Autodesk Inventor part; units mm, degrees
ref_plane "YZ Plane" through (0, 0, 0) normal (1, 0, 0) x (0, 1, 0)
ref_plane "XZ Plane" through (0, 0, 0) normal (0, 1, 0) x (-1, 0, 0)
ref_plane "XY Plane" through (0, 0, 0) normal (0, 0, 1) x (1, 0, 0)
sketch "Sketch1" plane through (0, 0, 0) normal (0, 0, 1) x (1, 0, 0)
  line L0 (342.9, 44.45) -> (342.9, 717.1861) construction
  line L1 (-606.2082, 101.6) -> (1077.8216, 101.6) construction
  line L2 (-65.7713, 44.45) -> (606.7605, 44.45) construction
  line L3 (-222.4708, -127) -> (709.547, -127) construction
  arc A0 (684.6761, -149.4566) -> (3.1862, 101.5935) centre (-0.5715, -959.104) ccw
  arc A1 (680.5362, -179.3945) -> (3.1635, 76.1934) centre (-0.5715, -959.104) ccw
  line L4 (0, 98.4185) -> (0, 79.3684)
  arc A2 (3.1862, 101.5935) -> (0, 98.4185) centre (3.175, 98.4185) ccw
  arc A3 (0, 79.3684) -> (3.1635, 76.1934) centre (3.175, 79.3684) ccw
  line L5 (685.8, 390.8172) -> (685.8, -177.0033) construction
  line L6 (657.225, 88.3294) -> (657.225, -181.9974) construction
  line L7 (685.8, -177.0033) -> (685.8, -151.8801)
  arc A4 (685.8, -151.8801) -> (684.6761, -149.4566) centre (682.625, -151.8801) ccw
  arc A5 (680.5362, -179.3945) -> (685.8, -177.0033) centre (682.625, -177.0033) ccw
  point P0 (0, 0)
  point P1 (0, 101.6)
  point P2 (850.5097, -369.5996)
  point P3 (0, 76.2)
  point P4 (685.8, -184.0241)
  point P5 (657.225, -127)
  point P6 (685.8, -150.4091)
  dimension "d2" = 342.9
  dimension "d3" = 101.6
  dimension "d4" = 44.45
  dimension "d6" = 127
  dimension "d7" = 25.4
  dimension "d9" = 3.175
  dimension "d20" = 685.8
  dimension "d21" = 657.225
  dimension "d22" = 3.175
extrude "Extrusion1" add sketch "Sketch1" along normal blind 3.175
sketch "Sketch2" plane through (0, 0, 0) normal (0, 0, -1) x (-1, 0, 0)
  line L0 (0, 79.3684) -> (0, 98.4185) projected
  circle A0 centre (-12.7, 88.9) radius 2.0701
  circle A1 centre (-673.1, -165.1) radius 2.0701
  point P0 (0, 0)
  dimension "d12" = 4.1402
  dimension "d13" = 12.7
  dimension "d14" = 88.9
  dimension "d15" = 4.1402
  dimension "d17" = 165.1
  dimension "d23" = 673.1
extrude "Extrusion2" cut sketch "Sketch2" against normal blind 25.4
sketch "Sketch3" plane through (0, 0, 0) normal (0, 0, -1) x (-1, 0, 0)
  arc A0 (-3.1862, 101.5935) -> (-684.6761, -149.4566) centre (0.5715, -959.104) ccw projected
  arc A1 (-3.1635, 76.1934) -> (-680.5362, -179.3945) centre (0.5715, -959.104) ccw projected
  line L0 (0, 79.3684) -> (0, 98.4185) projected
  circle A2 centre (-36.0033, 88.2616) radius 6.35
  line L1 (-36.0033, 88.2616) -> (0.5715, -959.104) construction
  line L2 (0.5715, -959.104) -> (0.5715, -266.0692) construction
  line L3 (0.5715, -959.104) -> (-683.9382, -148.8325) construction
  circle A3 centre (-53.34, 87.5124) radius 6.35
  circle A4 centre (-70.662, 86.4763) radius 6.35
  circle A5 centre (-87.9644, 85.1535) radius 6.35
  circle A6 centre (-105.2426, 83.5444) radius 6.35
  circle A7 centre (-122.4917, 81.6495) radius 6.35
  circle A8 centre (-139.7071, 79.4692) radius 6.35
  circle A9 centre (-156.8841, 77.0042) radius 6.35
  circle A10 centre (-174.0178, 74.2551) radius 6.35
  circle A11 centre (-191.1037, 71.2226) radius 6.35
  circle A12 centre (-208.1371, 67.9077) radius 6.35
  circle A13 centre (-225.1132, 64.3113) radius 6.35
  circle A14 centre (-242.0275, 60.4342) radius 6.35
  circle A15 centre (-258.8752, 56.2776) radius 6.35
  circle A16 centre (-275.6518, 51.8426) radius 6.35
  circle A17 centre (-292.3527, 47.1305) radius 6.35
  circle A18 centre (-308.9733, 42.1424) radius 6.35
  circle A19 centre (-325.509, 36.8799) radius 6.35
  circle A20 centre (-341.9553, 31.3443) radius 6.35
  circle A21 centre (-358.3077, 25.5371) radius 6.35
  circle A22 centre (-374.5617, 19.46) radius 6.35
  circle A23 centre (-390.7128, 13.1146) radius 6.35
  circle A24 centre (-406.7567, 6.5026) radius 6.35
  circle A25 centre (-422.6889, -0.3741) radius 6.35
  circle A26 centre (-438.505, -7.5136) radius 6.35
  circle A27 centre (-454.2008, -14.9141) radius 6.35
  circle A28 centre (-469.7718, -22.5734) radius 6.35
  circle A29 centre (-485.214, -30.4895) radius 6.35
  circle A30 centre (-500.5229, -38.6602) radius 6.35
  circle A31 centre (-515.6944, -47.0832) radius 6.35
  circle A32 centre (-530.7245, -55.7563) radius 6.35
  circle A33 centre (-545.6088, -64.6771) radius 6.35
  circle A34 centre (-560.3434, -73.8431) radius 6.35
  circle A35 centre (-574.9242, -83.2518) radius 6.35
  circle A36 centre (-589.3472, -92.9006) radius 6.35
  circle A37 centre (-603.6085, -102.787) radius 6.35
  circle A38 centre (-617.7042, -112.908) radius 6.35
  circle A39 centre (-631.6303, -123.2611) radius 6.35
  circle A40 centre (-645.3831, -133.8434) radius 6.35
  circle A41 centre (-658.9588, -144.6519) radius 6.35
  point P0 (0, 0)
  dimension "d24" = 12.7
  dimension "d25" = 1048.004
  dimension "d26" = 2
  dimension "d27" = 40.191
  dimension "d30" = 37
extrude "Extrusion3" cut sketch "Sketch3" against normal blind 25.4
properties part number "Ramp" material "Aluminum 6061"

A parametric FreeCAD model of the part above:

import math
import FreeCAD as App
import Part
import Sketcher
from FreeCAD import Vector
Q = App.Units.Quantity

doc = App.newDocument("Part")
body = doc.addObject("PartDesign::Body", "Body")

sketch1 = body.newObject("Sketcher::SketchObject", "Sketch")
sketch1.AttachmentSupport = (doc.getObject("XY_Plane"), [""])
sketch1.MapMode = "FlatFace"
sketch1.addGeometry([
    Part.ArcOfCircle(Part.Circle(Vector(682.6, -151.9, 0), Vector(0, 0, 1), 3.2), math.radians(0), math.radians(50)),
    Part.ArcOfCircle(Part.Circle(Vector(-0.6, -959.1, 0), Vector(0, 0, 1), 1060.7), math.radians(50), math.radians(90)),
    Part.ArcOfCircle(Part.Circle(Vector(3.2, 98.4, 0), Vector(0, 0, 1), 3.2), math.radians(90), math.radians(180)),
    Part.LineSegment(Vector(0, 98.4, 0), Vector(0, 79.4, 0)),
    Part.ArcOfCircle(Part.Circle(Vector(3.2, 79.4, 0), Vector(0, 0, 1), 3.2), math.radians(180), math.radians(270)),
    Part.ArcOfCircle(Part.Circle(Vector(-0.6, -959.1, 0), Vector(0, 0, 1), 1035.3), math.radians(49), math.radians(90)),
    Part.ArcOfCircle(Part.Circle(Vector(682.6, -177, 0), Vector(0, 0, 1), 3.2), math.radians(-131), math.radians(0)),
    Part.LineSegment(Vector(685.8, -177, 0), Vector(685.8, -151.9, 0)),
], False)
sketch1.addConstraint([
    Sketcher.Constraint("Tangent", 0, 2, 1, 1),
    Sketcher.Constraint("Tangent", 1, 2, 2, 1),
    Sketcher.Constraint("Tangent", 2, 2, 3, 1),
    Sketcher.Constraint("Tangent", 3, 2, 4, 1),
    Sketcher.Constraint("Tangent", 4, 2, 5, 2),
    Sketcher.Constraint("Tangent", 5, 1, 6, 1),
    Sketcher.Constraint("Tangent", 6, 2, 7, 1),
    Sketcher.Constraint("Tangent", 7, 2, 0, 1),
    Sketcher.Constraint("Vertical", 3),
    Sketcher.Constraint("Vertical", 7),
    Sketcher.Constraint("Coincident", 5, 3, 1, 3),
    Sketcher.Constraint("Equal", 0, 2),
    Sketcher.Constraint("Equal", 2, 4),
    Sketcher.Constraint("Equal", 4, 6),
    Sketcher.Constraint("PointOnObject", 2, 2, -2),
    Sketcher.Constraint("DistanceX", -1, 1, 6, 2, Q("27 in")),
    Sketcher.Constraint("Radius", 0, Q("0.125 in")),
    Sketcher.Constraint("DistanceY", 4, 2, 1, 2, Q("1 in")),
    Sketcher.Constraint("Radius", 1, Q("41.76 in")),
    Sketcher.Constraint("DistanceY", 1, 3, -1, 1, Q("37.76 in")),
    Sketcher.Constraint("DistanceY", 7, 1, 7, 2, Q("0.9891 in")),
])
pad1 = body.newObject("PartDesign::Pad", "Pad")
pad1.Profile = sketch1
pad1.Length = Q("0.125 in")

sketch2 = body.newObject("Sketcher::SketchObject", "Sketch001")
sketch2.AttachmentSupport = (doc.getObject("XY_Plane"), [""])
sketch2.MapMode = "FlatFace"
sketch2.addGeometry([
    Part.Circle(Vector(12.7, 88.9, 0), Vector(0, 0, 1), 2.1),
    Part.Circle(Vector(673.1, -165.1, 0), Vector(0, 0, 1), 2.1),
], False)
sketch2.addConstraint([
    Sketcher.Constraint("Equal", 0, 1),
    Sketcher.Constraint("Diameter", 0, Q("0.163 in")),
    Sketcher.Constraint("DistanceX", -1, 1, 0, 3, Q("0.5 in")),
    Sketcher.Constraint("DistanceY", -1, 1, 0, 3, Q("3.5 in")),
    Sketcher.Constraint("DistanceX", -1, 1, 1, 3, Q("26.5 in")),
    Sketcher.Constraint("DistanceY", 1, 3, -1, 1, Q("6.5 in")),
])
pocket1 = body.newObject("PartDesign::Pocket", "Pocket")
pocket1.Profile = sketch2
pocket1.Length = Q("1 in")
pocket1.Reversed = True

sketch3 = body.newObject("Sketcher::SketchObject", "Sketch002")
sketch3.AttachmentSupport = (doc.getObject("XY_Plane"), [""])
sketch3.MapMode = "FlatFace"
sketch3.addGeometry([
    Part.Circle(Vector(36, 88, 0), Vector(0, 0, 1), 6),
    Part.Circle(Vector(53, 88, 0), Vector(0, 0, 1), 6),
    Part.Circle(Vector(71, 86, 0), Vector(0, 0, 1), 6),
    Part.Circle(Vector(88, 85, 0), Vector(0, 0, 1), 6),
    Part.Circle(Vector(105, 84, 0), Vector(0, 0, 1), 6),
    Part.Circle(Vector(122, 82, 0), Vector(0, 0, 1), 6),
    Part.Circle(Vector(140, 79, 0), Vector(0, 0, 1), 6),
    Part.Circle(Vector(157, 77, 0), Vector(0, 0, 1), 6),
    Part.Circle(Vector(174, 74, 0), Vector(0, 0, 1), 6),
    Part.Circle(Vector(191, 71, 0), Vector(0, 0, 1), 6),
    Part.Circle(Vector(208, 68, 0), Vector(0, 0, 1), 6),
    Part.Circle(Vector(225, 64, 0), Vector(0, 0, 1), 6),
    Part.Circle(Vector(242, 60, 0), Vector(0, 0, 1), 6),
    Part.Circle(Vector(259, 56, 0), Vector(0, 0, 1), 6),
    Part.Circle(Vector(276, 52, 0), Vector(0, 0, 1), 6),
    Part.Circle(Vector(292, 47, 0), Vector(0, 0, 1), 6),
    Part.Circle(Vector(309, 42, 0), Vector(0, 0, 1), 6),
    Part.Circle(Vector(326, 37, 0), Vector(0, 0, 1), 6),
    Part.Circle(Vector(342, 31, 0), Vector(0, 0, 1), 6),
    Part.Circle(Vector(358, 26, 0), Vector(0, 0, 1), 6),
    Part.Circle(Vector(375, 19, 0), Vector(0, 0, 1), 6),
    Part.Circle(Vector(391, 13, 0), Vector(0, 0, 1), 6),
    Part.Circle(Vector(407, 7, 0), Vector(0, 0, 1), 6),
    Part.Circle(Vector(423, 0, 0), Vector(0, 0, 1), 6),
    Part.Circle(Vector(439, -8, 0), Vector(0, 0, 1), 6),
    Part.Circle(Vector(454, -15, 0), Vector(0, 0, 1), 6),
    Part.Circle(Vector(470, -23, 0), Vector(0, 0, 1), 6),
    Part.Circle(Vector(485, -30, 0), Vector(0, 0, 1), 6),
    Part.Circle(Vector(501, -39, 0), Vector(0, 0, 1), 6),
    Part.Circle(Vector(516, -47, 0), Vector(0, 0, 1), 6),
    Part.Circle(Vector(531, -56, 0), Vector(0, 0, 1), 6),
    Part.Circle(Vector(546, -65, 0), Vector(0, 0, 1), 6),
    Part.Circle(Vector(560, -74, 0), Vector(0, 0, 1), 6),
    Part.Circle(Vector(575, -83, 0), Vector(0, 0, 1), 6),
    Part.Circle(Vector(589, -93, 0), Vector(0, 0, 1), 6),
    Part.Circle(Vector(604, -103, 0), Vector(0, 0, 1), 6),
    Part.Circle(Vector(618, -113, 0), Vector(0, 0, 1), 6),
    Part.Circle(Vector(632, -123, 0), Vector(0, 0, 1), 6),
    Part.Circle(Vector(645, -134, 0), Vector(0, 0, 1), 6),
    Part.Circle(Vector(659, -145, 0), Vector(0, 0, 1), 6),
], False)
sketch3.addConstraint([
    Sketcher.Constraint("Equal", 0, 1),
    Sketcher.Constraint("Equal", 1, 2),
    Sketcher.Constraint("Equal", 2, 3),
    Sketcher.Constraint("Equal", 3, 4),
    Sketcher.Constraint("Equal", 4, 5),
    Sketcher.Constraint("Equal", 5, 6),
    Sketcher.Constraint("Equal", 6, 7),
    Sketcher.Constraint("Equal", 7, 8),
    Sketcher.Constraint("Equal", 8, 9),
    Sketcher.Constraint("Equal", 9, 10),
    Sketcher.Constraint("Equal", 10, 11),
    Sketcher.Constraint("Equal", 11, 12),
    Sketcher.Constraint("Equal", 12, 13),
    Sketcher.Constraint("Equal", 13, 14),
    Sketcher.Constraint("Equal", 14, 15),
    Sketcher.Constraint("Equal", 15, 16),
    Sketcher.Constraint("Equal", 16, 17),
    Sketcher.Constraint("Equal", 17, 18),
    Sketcher.Constraint("Equal", 18, 19),
    Sketcher.Constraint("Equal", 19, 20),
    Sketcher.Constraint("Equal", 20, 21),
    Sketcher.Constraint("Equal", 21, 22),
    Sketcher.Constraint("Equal", 22, 23),
    Sketcher.Constraint("Equal", 23, 24),
    Sketcher.Constraint("Equal", 24, 25),
    Sketcher.Constraint("Equal", 25, 26),
    Sketcher.Constraint("Equal", 26, 27),
    Sketcher.Constraint("Equal", 27, 28),
    Sketcher.Constraint("Equal", 28, 29),
    Sketcher.Constraint("Equal", 29, 30),
    Sketcher.Constraint("Equal", 30, 31),
    Sketcher.Constraint("Equal", 31, 32),
    Sketcher.Constraint("Equal", 32, 33),
    Sketcher.Constraint("Equal", 33, 34),
    Sketcher.Constraint("Equal", 34, 35),
    Sketcher.Constraint("Equal", 35, 36),
    Sketcher.Constraint("Equal", 36, 37),
    Sketcher.Constraint("Equal", 37, 38),
    Sketcher.Constraint("Equal", 38, 39),
    Sketcher.Constraint("Diameter", 0, Q("0.5 in")),
    Sketcher.Constraint("DistanceX", -1, 1, 1, 3, Q("2.1 in")),
    Sketcher.Constraint("DistanceY", -1, 1, 22, 3, Q("0.256 in")),
    Sketcher.Constraint("DistanceY", 14, 3, 9, 3, Q("0.763 in")),
    Sketcher.Constraint("DistanceX", 13, 3, 15, 3, Q("1.318 in")),
    Sketcher.Constraint("DistanceY", 15, 3, 10, 3, Q("0.818 in")),
    Sketcher.Constraint("DistanceX", 16, 3, 17, 3, Q("0.651 in")),
    Sketcher.Constraint("DistanceY", 20, 3, 16, 3, Q("0.893 in")),
    Sketcher.Constraint("DistanceY", 26, 3, 23, 3, Q("0.874 in")),
    Sketcher.Constraint("DistanceX", 25, 3, 27, 3, Q("1.221 in")),
    Sketcher.Constraint("DistanceX", 25, 3, 29, 3, Q("2.421 in")),
    Sketcher.Constraint("DistanceX", 30, 3, 31, 3, Q("0.586 in")),
    Sketcher.Constraint("DistanceY", 36, 3, 32, 3, Q("1.538 in")),
    Sketcher.Constraint("DistanceY", -1, 1, 3, 3, Q("3.3525 in")),
    Sketcher.Constraint("DistanceX", -1, 1, 4, 3, Q("4.1434 in")),
    Sketcher.Constraint("DistanceX", -1, 1, 5, 3, Q("4.8225 in")),
    Sketcher.Constraint("DistanceY", -1, 1, 6, 3, Q("3.1287 in")),
    Sketcher.Constraint("DistanceX", -1, 1, 8, 3, Q("6.8511 in")),
    Sketcher.Constraint("DistanceY", -1, 1, 12, 3, Q("2.3793 in")),
    Sketcher.Constraint("DistanceX", -1, 1, 16, 3, Q("12.1643 in")),
    Sketcher.Constraint("DistanceX", -1, 1, 18, 3, Q("13.4628 in")),
    Sketcher.Constraint("DistanceX", -1, 1, 19, 3, Q("14.1066 in")),
    Sketcher.Constraint("DistanceY", -1, 1, 19, 3, Q("1.0054 in")),
    Sketcher.Constraint("DistanceX", -1, 1, 21, 3, Q("15.3824 in")),
    Sketcher.Constraint("DistanceX", -1, 1, 23, 3, Q("16.6413 in")),
    Sketcher.Constraint("DistanceY", 24, 3, -1, 1, Q("0.2958 in")),
    Sketcher.Constraint("DistanceY", 32, 3, -1, 1, Q("2.9072 in")),
    Sketcher.Constraint("DistanceX", -1, 1, 33, 3, Q("22.6348 in")),
    Sketcher.Constraint("DistanceY", 34, 3, -1, 1, Q("3.6575 in")),
    Sketcher.Constraint("DistanceY", 37, 3, -1, 1, Q("4.8528 in")),
    Sketcher.Constraint("DistanceY", 1, 3, 0, 3, Q("0.0295 in")),
    Sketcher.Constraint("DistanceY", 2, 3, 1, 3, Q("0.0408 in")),
    Sketcher.Constraint("DistanceX", 2, 3, 3, 3, Q("0.6812 in")),
    Sketcher.Constraint("DistanceY", 5, 3, 4, 3, Q("0.0746 in")),
    Sketcher.Constraint("DistanceX", 2, 3, 6, 3, Q("2.7183 in")),
    Sketcher.Constraint("DistanceY", 7, 3, 4, 3, Q("0.2575 in")),
    Sketcher.Constraint("DistanceY", 9, 3, 8, 3, Q("0.1194 in")),
    Sketcher.Constraint("DistanceX", 6, 3, 9, 3, Q("2.0235 in")),
    Sketcher.Constraint("DistanceY", 9, 3, 5, 3, Q("0.4105 in")),
    Sketcher.Constraint("DistanceX", 9, 3, 10, 3, Q("0.6706 in")),
    Sketcher.Constraint("DistanceY", 10, 3, 9, 3, Q("0.1305 in")),
    Sketcher.Constraint("DistanceY", 11, 3, 10, 3, Q("0.1416 in")),
    Sketcher.Constraint("DistanceX", 7, 3, 12, 3, Q("3.3521 in")),
    Sketcher.Constraint("DistanceX", 12, 3, 13, 3, Q("0.6633 in")),
    Sketcher.Constraint("DistanceX", 13, 3, 14, 3, Q("0.6605 in")),
    Sketcher.Constraint("DistanceY", 14, 3, 13, 3, Q("0.1746 in")),
    Sketcher.Constraint("DistanceX", 11, 3, 14, 3, Q("1.9897 in")),
    Sketcher.Constraint("DistanceY", 16, 3, 14, 3, Q("0.3819 in")),
    Sketcher.Constraint("DistanceY", 17, 3, 13, 3, Q("0.7637 in")),
    Sketcher.Constraint("DistanceY", 18, 3, 15, 3, Q("0.6215 in")),
    Sketcher.Constraint("DistanceX", 17, 3, 20, 3, Q("1.9312 in")),
    Sketcher.Constraint("DistanceY", 21, 3, 18, 3, Q("0.7177 in")),
    Sketcher.Constraint("DistanceY", 25, 3, 21, 3, Q("1.1035 in")),
    Sketcher.Constraint("DistanceX", 20, 3, 25, 3, Q("3.1354 in")),
    Sketcher.Constraint("DistanceY", 26, 3, 24, 3, Q("0.5929 in")),
    Sketcher.Constraint("DistanceX", 22, 3, 26, 3, Q("2.4809 in")),
    Sketcher.Constraint("DistanceY", 27, 3, 25, 3, Q("0.6132 in")),
    Sketcher.Constraint("DistanceX", 25, 3, 28, 3, Q("1.8237 in")),
    Sketcher.Constraint("DistanceY", 29, 3, 27, 3, Q("0.6533 in")),
    Sketcher.Constraint("DistanceX", 26, 3, 31, 3, Q("2.9857 in")),
    Sketcher.Constraint("DistanceX", 31, 3, 32, 3, Q("0.5801 in")),
    Sketcher.Constraint("DistanceY", 33, 3, 30, 3, Q("1.0825 in")),
    Sketcher.Constraint("DistanceX", 33, 3, 35, 3, Q("1.1293 in")),
    Sketcher.Constraint("DistanceY", 35, 3, 33, 3, Q("0.7691 in")),
    Sketcher.Constraint("DistanceY", 35, 3, 31, 3, Q("1.5004 in")),
    Sketcher.Constraint("DistanceX", 32, 3, 36, 3, Q("2.2583 in")),
    Sketcher.Constraint("DistanceX", 34, 3, 37, 3, Q("1.6647 in")),
    Sketcher.Constraint("DistanceY", 38, 3, 35, 3, Q("1.2227 in")),
    Sketcher.Constraint("DistanceX", 36, 3, 39, 3, Q("1.6242 in")),
    Sketcher.Constraint("DistanceX", -1, 1, 0, 3, 36.0033),
    Sketcher.Constraint("DistanceY", -1, 1, 0, 3, 88.2616),
    Sketcher.Constraint("DistanceX", -1, 1, 2, 3, 70.662),
    Sketcher.Constraint("DistanceY", -1, 1, 4, 3, 83.5444),
    Sketcher.Constraint("DistanceX", -1, 1, 7, 3, 156.884),
    Sketcher.Constraint("DistanceX", -1, 1, 22, 3, 406.7567),
    Sketcher.Constraint("DistanceX", -1, 1, 24, 3, 438.505),
    Sketcher.Constraint("DistanceY", 28, 3, -1, 1, 38.6602),
    Sketcher.Constraint("DistanceY", 30, 3, -1, 1, 55.7563),
    Sketcher.Constraint("DistanceX", -1, 1, 34, 3, 589.3472),
    Sketcher.Constraint("DistanceX", -1, 1, 38, 3, 645.383),
    Sketcher.Constraint("DistanceY", 39, 3, -1, 1, 144.652),
])
pocket2 = body.newObject("PartDesign::Pocket", "Pocket001")
pocket2.Profile = sketch3
pocket2.Length = Q("1 in")
pocket2.Reversed = True

doc.recompute()
